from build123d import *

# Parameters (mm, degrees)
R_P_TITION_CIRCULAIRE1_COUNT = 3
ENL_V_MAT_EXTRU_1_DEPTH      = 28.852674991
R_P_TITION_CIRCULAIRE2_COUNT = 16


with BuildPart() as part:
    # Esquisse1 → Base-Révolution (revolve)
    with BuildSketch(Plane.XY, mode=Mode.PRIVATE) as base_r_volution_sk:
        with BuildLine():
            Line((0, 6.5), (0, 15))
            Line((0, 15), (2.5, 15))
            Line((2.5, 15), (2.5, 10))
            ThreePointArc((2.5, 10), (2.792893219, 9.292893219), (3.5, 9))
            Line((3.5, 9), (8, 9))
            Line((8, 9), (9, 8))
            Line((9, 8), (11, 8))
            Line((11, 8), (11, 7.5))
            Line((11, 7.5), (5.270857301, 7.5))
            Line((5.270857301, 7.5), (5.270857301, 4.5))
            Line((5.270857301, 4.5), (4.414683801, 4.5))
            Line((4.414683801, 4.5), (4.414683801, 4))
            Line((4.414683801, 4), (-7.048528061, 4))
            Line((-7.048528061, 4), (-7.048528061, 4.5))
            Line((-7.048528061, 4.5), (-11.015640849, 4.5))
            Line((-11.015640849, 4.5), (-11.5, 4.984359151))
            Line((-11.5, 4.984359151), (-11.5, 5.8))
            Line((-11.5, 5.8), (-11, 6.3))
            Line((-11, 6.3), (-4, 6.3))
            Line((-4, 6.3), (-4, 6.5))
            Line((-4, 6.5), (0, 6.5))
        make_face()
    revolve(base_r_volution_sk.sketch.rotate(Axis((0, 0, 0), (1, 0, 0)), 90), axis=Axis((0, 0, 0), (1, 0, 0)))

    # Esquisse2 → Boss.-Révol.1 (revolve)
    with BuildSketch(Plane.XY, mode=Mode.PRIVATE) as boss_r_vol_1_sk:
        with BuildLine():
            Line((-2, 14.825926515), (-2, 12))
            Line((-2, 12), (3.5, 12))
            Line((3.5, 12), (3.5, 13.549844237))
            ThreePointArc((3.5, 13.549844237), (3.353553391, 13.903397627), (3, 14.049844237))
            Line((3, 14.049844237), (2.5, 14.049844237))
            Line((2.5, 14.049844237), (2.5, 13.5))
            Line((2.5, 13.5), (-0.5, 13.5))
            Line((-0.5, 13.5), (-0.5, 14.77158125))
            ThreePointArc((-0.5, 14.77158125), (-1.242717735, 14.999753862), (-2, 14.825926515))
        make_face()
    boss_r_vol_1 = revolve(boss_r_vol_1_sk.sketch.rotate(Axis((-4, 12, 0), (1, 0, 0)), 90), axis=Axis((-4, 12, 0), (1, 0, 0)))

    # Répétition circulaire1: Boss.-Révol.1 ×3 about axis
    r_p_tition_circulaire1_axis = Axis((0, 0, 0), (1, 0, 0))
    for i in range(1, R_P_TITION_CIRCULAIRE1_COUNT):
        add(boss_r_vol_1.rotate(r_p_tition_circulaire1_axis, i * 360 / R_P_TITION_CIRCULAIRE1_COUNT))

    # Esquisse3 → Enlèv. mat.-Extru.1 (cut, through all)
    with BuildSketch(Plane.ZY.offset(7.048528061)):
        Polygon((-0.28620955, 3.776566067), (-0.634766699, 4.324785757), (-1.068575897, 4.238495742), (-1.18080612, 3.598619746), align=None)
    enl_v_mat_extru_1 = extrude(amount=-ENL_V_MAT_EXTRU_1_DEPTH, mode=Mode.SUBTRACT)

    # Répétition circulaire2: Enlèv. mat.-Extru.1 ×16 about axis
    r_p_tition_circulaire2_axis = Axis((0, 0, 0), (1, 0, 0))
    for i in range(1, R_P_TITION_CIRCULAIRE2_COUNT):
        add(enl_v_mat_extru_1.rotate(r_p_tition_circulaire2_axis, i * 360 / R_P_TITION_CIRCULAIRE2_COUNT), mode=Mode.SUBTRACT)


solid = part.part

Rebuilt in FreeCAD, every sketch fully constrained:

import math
import FreeCAD as App
import Part
import Sketcher

V = App.Vector
Q = App.Units.Quantity


def add_polygon(sketch, points):
    """Adds a closed chain of lines whose ends are joined by coincident constraints."""
    first, n = sketch.GeometryCount, len(points)
    for a, b in zip(points, points[1:] + points[:1]):
        sketch.addGeometry(Part.LineSegment(App.Vector(*a, 0), App.Vector(*b, 0)), False)
    for i in range(n):
        sketch.addConstraint(Sketcher.Constraint("Coincident", first + i, 2, first + (i + 1) % n, 1))

doc = App.newDocument("Part")
body = doc.addObject("PartDesign::Body", "Body")

# Sketch on XY plane
sketch1 = doc.addObject("Sketcher::SketchObject", "Sketch")
body.addObject(sketch1)
sketch1.AttachmentSupport = (doc.XY_Plane, [""])
sketch1.MapMode = "FlatFace"
sketch1.addGeometry([
    Part.LineSegment(V(0, 15, 0), V(0, 6.5, 0)),  # 0
    Part.LineSegment(V(0, 6.5, 0), V(-4, 6.5, 0)),  # 1
    Part.LineSegment(V(-4, 6.5, 0), V(-4, 6.3, 0)),  # 2
    Part.LineSegment(V(-4, 6.3, 0), V(-11, 6.3, 0)),  # 3
    Part.LineSegment(V(-11, 6.3, 0), V(-11.5, 5.8, 0)),  # 4
    Part.LineSegment(V(-11.5, 5.8, 0), V(-11.5, 4.98, 0)),  # 5
    Part.LineSegment(V(-11.5, 4.98, 0), V(-11.02, 4.5, 0)),  # 6
    Part.LineSegment(V(-11.02, 4.5, 0), V(-7.05, 4.5, 0)),  # 7
    Part.LineSegment(V(-7.05, 4.5, 0), V(-7.05, 4, 0)),  # 8
    Part.LineSegment(V(-7.05, 4, 0), V(4.41, 4, 0)),  # 9
    Part.LineSegment(V(4.41, 4, 0), V(4.41, 4.5, 0)),  # 10
    Part.LineSegment(V(4.41, 4.5, 0), V(5.27, 4.5, 0)),  # 11
    Part.LineSegment(V(5.27, 4.5, 0), V(5.27, 7.5, 0)),  # 12
    Part.LineSegment(V(5.27, 7.5, 0), V(11, 7.5, 0)),  # 13
    Part.LineSegment(V(11, 7.5, 0), V(11, 8, 0)),  # 14
    Part.LineSegment(V(11, 8, 0), V(9, 8, 0)),  # 15
    Part.LineSegment(V(9, 8, 0), V(8, 9, 0)),  # 16
    Part.LineSegment(V(8, 9, 0), V(3.5, 9, 0)),  # 17
    Part.ArcOfCircle(Part.Circle(V(3.5, 10, 0), V(0, 0, 1), 1), math.radians(-180), math.radians(-90)),  # 18
    Part.LineSegment(V(2.5, 10, 0), V(2.5, 15, 0)),  # 19
    Part.LineSegment(V(2.5, 15, 0), V(0, 15, 0)),  # 20
], False)
sketch1.addConstraint([
    Sketcher.Constraint("Coincident", 0, 2, 1, 1),
    Sketcher.Constraint("Coincident", 1, 2, 2, 1),
    Sketcher.Constraint("Coincident", 2, 2, 3, 1),
    Sketcher.Constraint("Coincident", 3, 2, 4, 1),
    Sketcher.Constraint("Coincident", 4, 2, 5, 1),
    Sketcher.Constraint("Coincident", 5, 2, 6, 1),
    Sketcher.Constraint("Coincident", 6, 2, 7, 1),
    Sketcher.Constraint("Coincident", 7, 2, 8, 1),
    Sketcher.Constraint("Coincident", 8, 2, 9, 1),
    Sketcher.Constraint("Coincident", 9, 2, 10, 1),
    Sketcher.Constraint("Coincident", 10, 2, 11, 1),
    Sketcher.Constraint("Coincident", 11, 2, 12, 1),
    Sketcher.Constraint("Coincident", 12, 2, 13, 1),
    Sketcher.Constraint("Coincident", 13, 2, 14, 1),
    Sketcher.Constraint("Coincident", 14, 2, 15, 1),
    Sketcher.Constraint("Coincident", 15, 2, 16, 1),
    Sketcher.Constraint("Coincident", 16, 2, 17, 1),
    Sketcher.Constraint("Tangent", 17, 2, 18, 2),
    Sketcher.Constraint("Tangent", 18, 1, 19, 1),
    Sketcher.Constraint("Coincident", 19, 2, 20, 1),
    Sketcher.Constraint("Coincident", 20, 2, 0, 1),
    Sketcher.Constraint("Vertical", 0),
    Sketcher.Constraint("Horizontal", 1),
    Sketcher.Constraint("Vertical", 2),
    Sketcher.Constraint("Horizontal", 3),
    Sketcher.Constraint("Vertical", 5),
    Sketcher.Constraint("Horizontal", 7),
    Sketcher.Constraint("Vertical", 8),
    Sketcher.Constraint("Horizontal", 9),
    Sketcher.Constraint("Vertical", 10),
    Sketcher.Constraint("Horizontal", 11),
    Sketcher.Constraint("Vertical", 12),
    Sketcher.Constraint("Horizontal", 13),
    Sketcher.Constraint("Vertical", 14),
    Sketcher.Constraint("Horizontal", 15),
    Sketcher.Constraint("Horizontal", 17),
    Sketcher.Constraint("Vertical", 19),
    Sketcher.Constraint("Horizontal", 20),
    Sketcher.Constraint("PointOnObject", 0, 2, -2),
    Sketcher.Constraint("Perpendicular", 4, 6),
    Sketcher.Constraint("Parallel", 6, 16),
    Sketcher.Constraint("Horizontal", 7, 2, 10, 2),
    Sketcher.Constraint("Equal", 10, 14),
    Sketcher.Constraint("Radius", 18, 1.0),
    Sketcher.Constraint("DistanceX", 1, 2, 1, 1, 4.0),
    Sketcher.Constraint("DistanceX", 3, 2, 3, 1, 7.0),
    Sketcher.Constraint("DistanceX", 15, 2, 15, 1, 2.0),
    Sketcher.Constraint("DistanceY", 12, 1, 12, 2, 3.0),
    Sketcher.Constraint("DistanceY", 19, 1, 19, 2, 5.0),
    Sketcher.Constraint("Angle", 4, Q("-135 deg")),
    Sketcher.Constraint("DistanceX", 17, 2, 17, 1, 4.5),
    Sketcher.Constraint("DistanceX", 20, 2, 20, 1, 2.5),
    Sketcher.Constraint("DistanceY", 0, 2, 0, 1, 8.5),
    Sketcher.Constraint("DistanceY", 2, 2, 2, 1, 0.2),
    Sketcher.Constraint("DistanceY", 8, 2, 8, 1, 0.5),
    Sketcher.Constraint("DistanceY", -1, 1, 18, 3, 10.0),
    Sketcher.Constraint("DistanceY", -1, 1, 8, 2, 4.0),
    Sketcher.Constraint("DistanceX", 4, 2, 18, 3, 15.0),
    Sketcher.Constraint("DistanceX", 9, 1, 9, 2, 11.463212),
    Sketcher.Constraint("DistanceY", 5, 2, 5, 1, 0.815641),
    Sketcher.Constraint("DistanceX", 7, 1, 7, 2, 3.967113),
    Sketcher.Constraint("DistanceX", 11, 1, 11, 2, 0.856174),
])
revolution = doc.addObject("PartDesign::Revolution", "Revolution")
body.addObject(revolution)
revolution.Profile = sketch1
revolution.ReferenceAxis = (sketch1, ["H_Axis"])
revolution.Angle = 360

# Sketch on XY plane
sketch2 = doc.addObject("Sketcher::SketchObject", "Sketch001")
body.addObject(sketch2)
sketch2.AttachmentSupport = (doc.XY_Plane, [""])
sketch2.MapMode = "FlatFace"
sketch2.addGeometry([
    Part.LineSegment(V(-2, 14.8, 0), V(-2, 12, 0)),  # 0
    Part.LineSegment(V(-2, 12, 0), V(3.5, 12, 0)),  # 1
    Part.LineSegment(V(3.5, 12, 0), V(3.5, 13.5, 0)),  # 2
    Part.ArcOfCircle(Part.Circle(V(3, 13.5, 0), V(0, 0, 1), 0.5), math.radians(0), math.radians(90)),  # 3
    Part.LineSegment(V(3, 14, 0), V(2.5, 14, 0)),  # 4
    Part.LineSegment(V(2.5, 14, 0), V(2.5, 13.5, 0)),  # 5
    Part.LineSegment(V(2.5, 13.5, 0), V(-0.5, 13.5, 0)),  # 6
    Part.LineSegment(V(-0.5, 13.5, 0), V(-0.5, 14.8, 0)),  # 7
    Part.ArcOfCircle(Part.Circle(V(-1.3, 13.5, 0), V(0, 0, 1), 1.5), math.radians(58), math.radians(118)),  # 8
], False)
sketch2.addGeometry(Part.LineSegment(V(-2, 12, 0), V(3.5, 12, 0)), True)  # axis
sketch2.addConstraint([
    Sketcher.Constraint("Coincident", 0, 2, 1, 1),
    Sketcher.Constraint("Coincident", 1, 2, 2, 1),
    Sketcher.Constraint("Tangent", 2, 2, 3, 1),
    Sketcher.Constraint("Tangent", 3, 2, 4, 1),
    Sketcher.Constraint("Coincident", 4, 2, 5, 1),
    Sketcher.Constraint("Coincident", 5, 2, 6, 1),
    Sketcher.Constraint("Coincident", 6, 2, 7, 1),
    Sketcher.Constraint("Coincident", 7, 2, 8, 1),
    Sketcher.Constraint("Coincident", 8, 2, 0, 1),
    Sketcher.Constraint("Vertical", 0),
    Sketcher.Constraint("Horizontal", 1),
    Sketcher.Constraint("Vertical", 2),
    Sketcher.Constraint("Horizontal", 4),
    Sketcher.Constraint("Vertical", 5),
    Sketcher.Constraint("Horizontal", 6),
    Sketcher.Constraint("Vertical", 7),
    Sketcher.Constraint("Horizontal", 9),
    Sketcher.Constraint("Coincident", 9, 1, 0, 2),
    Sketcher.Constraint("Horizontal", 8, 3, 5, 2),
    Sketcher.Constraint("Vertical", 2, 2, 9, 2),
    Sketcher.Constraint("Radius", 3, 0.5),
    Sketcher.Constraint("DistanceX", 6, 2, 6, 1, 3.0),
    Sketcher.Constraint("DistanceX", 1, 1, 1, 2, 5.5),
    Sketcher.Constraint("DistanceX", 4, 2, 4, 1, 0.5),
    Sketcher.Constraint("DistanceX", -1, 1, 3, 3, 3.0),
    Sketcher.Constraint("DistanceY", -1, 1, 0, 2, 12.0),
    Sketcher.Constraint("DistanceY", -1, 1, 8, 3, 13.5),
    Sketcher.Constraint("Radius", 8, 1.500738),
    Sketcher.Constraint("DistanceY", 7, 1, 7, 2, 1.271581),
    Sketcher.Constraint("DistanceY", 2, 1, 2, 2, 1.549844),
])
revolution2 = doc.addObject("PartDesign::Revolution", "Revolution001")
body.addObject(revolution2)
revolution2.Profile = sketch2
revolution2.ReferenceAxis = (sketch2, ["Axis0"])
revolution2.Angle = 360
doc.recompute()

polarpattern = doc.addObject("PartDesign::PolarPattern", "PolarPattern")
body.addObject(polarpattern)
polarpattern.Originals = [revolution2]
polarpattern.Axis = (doc.X_Axis, [""])
polarpattern.Angle = 360
polarpattern.Occurrences = 3
body.Tip = polarpattern

# Sketch on YZ plane
sketch3 = doc.addObject("Sketcher::SketchObject", "Sketch002")
body.addObject(sketch3)
sketch3.AttachmentSupport = (doc.YZ_Plane, [""])
sketch3.MapMode = "FlatFace"
sketch3.AttachmentOffset = App.Placement(V(0, 0, -7.048528), App.Rotation())
add_polygon(sketch3, [(3.78, -0.29), (4.32, -0.63), (4.24, -1.07), (3.6, -1.18)])  # lines 0-3
sketch3.addConstraint([
    Sketcher.Constraint("Parallel", 1, 3),
    Sketcher.Constraint("Equal", 0, 2),
    Sketcher.Constraint("Angle", 1, Q("-101.25 deg")),
    Sketcher.Constraint("Distance", 1, 0.442308),
    Sketcher.Constraint("DistanceX", -1, 1, 2, 2, 3.59862),
    Sketcher.Constraint("DistanceY", 3, 2, -1, 1, 0.28621),
    Sketcher.Constraint("DistanceY", 2, 2, 1, 2, 0.11223),
    Sketcher.Constraint("DistanceX", 3, 2, 0, 2, 0.54822),
])
pocket1 = doc.addObject("PartDesign::Pocket", "Pocket")
body.addObject(pocket1)
pocket1.Profile = sketch3
pocket1.Type = "ThroughAll"
pocket1.Reversed = True
doc.recompute()

polarpattern2 = doc.addObject("PartDesign::PolarPattern", "PolarPattern001")
body.addObject(polarpattern2)
polarpattern2.Originals = [pocket1]
polarpattern2.Axis = (doc.X_Axis, [""])
polarpattern2.Angle = 360
polarpattern2.Occurrences = 16
body.Tip = polarpattern2

doc.recompute()
